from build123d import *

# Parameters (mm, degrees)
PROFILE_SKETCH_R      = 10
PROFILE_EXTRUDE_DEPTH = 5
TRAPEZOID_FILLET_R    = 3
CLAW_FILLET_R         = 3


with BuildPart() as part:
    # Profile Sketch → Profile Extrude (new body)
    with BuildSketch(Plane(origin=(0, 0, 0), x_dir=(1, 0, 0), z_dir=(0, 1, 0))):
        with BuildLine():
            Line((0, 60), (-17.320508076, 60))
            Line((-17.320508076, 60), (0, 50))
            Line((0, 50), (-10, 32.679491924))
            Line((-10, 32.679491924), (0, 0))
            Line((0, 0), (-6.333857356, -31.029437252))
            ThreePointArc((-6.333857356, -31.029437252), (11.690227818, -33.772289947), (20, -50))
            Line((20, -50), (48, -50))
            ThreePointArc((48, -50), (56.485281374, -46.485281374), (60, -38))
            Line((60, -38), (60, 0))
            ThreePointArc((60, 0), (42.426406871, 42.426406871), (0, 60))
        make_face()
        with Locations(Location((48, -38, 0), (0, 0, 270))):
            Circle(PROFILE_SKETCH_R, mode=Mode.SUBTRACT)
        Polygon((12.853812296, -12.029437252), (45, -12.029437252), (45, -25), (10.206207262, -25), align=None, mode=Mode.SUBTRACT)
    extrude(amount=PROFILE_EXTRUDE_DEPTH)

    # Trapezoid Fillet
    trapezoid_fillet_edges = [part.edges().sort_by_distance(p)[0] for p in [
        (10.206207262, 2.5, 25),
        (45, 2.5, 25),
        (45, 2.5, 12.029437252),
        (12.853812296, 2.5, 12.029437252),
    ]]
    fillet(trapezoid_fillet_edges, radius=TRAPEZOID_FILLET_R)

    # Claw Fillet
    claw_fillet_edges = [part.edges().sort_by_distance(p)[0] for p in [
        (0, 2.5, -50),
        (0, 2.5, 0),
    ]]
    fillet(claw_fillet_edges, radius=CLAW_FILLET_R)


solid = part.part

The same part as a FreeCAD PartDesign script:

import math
import FreeCAD as App
import Part
import Sketcher

V = App.Vector
Q = App.Units.Quantity


def edges_at(feature, points):
    """Names of the edges that pass closest to the given points."""
    edges = feature.Shape.Edges
    near = lambda p: min(range(len(edges)), key=lambda i: edges[i].distToShape(Part.Vertex(*p))[0])
    return sorted({f"Edge{near(p) + 1}" for p in points})

doc = App.newDocument("Part")
body = doc.addObject("PartDesign::Body", "Body")

sketch1 = body.newObject("Sketcher::SketchObject", "Sketch")
sketch1.AttachmentSupport = (doc.getObject("XZ_Plane"), [""])
sketch1.MapMode = "FlatFace"
sketch1.addGeometry([
    Part.LineSegment(V(0, -60, 0), V(-17, -60, 0)),
    Part.LineSegment(V(-17, -60, 0), V(0, -50, 0)),
    Part.LineSegment(V(0, -50, 0), V(-10, -33, 0)),
    Part.LineSegment(V(-10, -33, 0), V(0, 0, 0)),
    Part.LineSegment(V(0, 0, 0), V(-6, 31, 0)),
    Part.ArcOfCircle(Part.Circle(V(0, 50, 0), V(0, 0, 1), 20), math.radians(-108), math.radians(0)),
    Part.LineSegment(V(20, 50, 0), V(48, 50, 0)),
    Part.ArcOfCircle(Part.Circle(V(48, 38, 0), V(0, 0, 1), 12), math.radians(0), math.radians(90)),
    Part.LineSegment(V(60, 38, 0), V(60, 0, 0)),
    Part.ArcOfCircle(Part.Circle(V(0, 0, 0), V(0, 0, 1), 60), math.radians(-90), math.radians(0)),
    Part.Circle(V(48, 38, 0), V(0, 0, 1), 10),
    Part.LineSegment(V(10, 25, 0), V(13, 12, 0)),
    Part.LineSegment(V(13, 12, 0), V(45, 12, 0)),
    Part.LineSegment(V(45, 12, 0), V(45, 25, 0)),
    Part.LineSegment(V(45, 25, 0), V(10, 25, 0)),
], False)
sketch1.addConstraint([
    Sketcher.Constraint("Coincident", 0, 2, 1, 1),
    Sketcher.Constraint("Coincident", 1, 2, 2, 1),
    Sketcher.Constraint("Coincident", 2, 2, 3, 1),
    Sketcher.Constraint("Coincident", 3, 2, 4, 1),
    Sketcher.Constraint("Coincident", 4, 2, 5, 1),
    Sketcher.Constraint("Coincident", 5, 2, 6, 1),
    Sketcher.Constraint("Tangent", 6, 2, 7, 2),
    Sketcher.Constraint("Tangent", 7, 1, 8, 1),
    Sketcher.Constraint("Tangent", 8, 2, 9, 2),
    Sketcher.Constraint("Tangent", 9, 1, 0, 1),
    Sketcher.Constraint("Coincident", 11, 2, 12, 1),
    Sketcher.Constraint("Coincident", 12, 2, 13, 1),
    Sketcher.Constraint("Coincident", 13, 2, 14, 1),
    Sketcher.Constraint("Coincident", 14, 2, 11, 1),
    Sketcher.Constraint("Horizontal", 0),
    Sketcher.Constraint("Horizontal", 6),
    Sketcher.Constraint("Vertical", 8),
    Sketcher.Constraint("Horizontal", 12),
    Sketcher.Constraint("Vertical", 13),
    Sketcher.Constraint("Horizontal", 14),
    Sketcher.Constraint("Coincident", 9, 3, -1, 1),
    Sketcher.Constraint("Coincident", 3, 2, -1, 1),
    Sketcher.Constraint("Coincident", 10, 3, 7, 3),
    Sketcher.Constraint("PointOnObject", 5, 3, -2),
    Sketcher.Constraint("PointOnObject", 1, 2, -2),
    Sketcher.Constraint("Perpendicular", 1, 2),
    Sketcher.Constraint("Parallel", 4, 11),
    Sketcher.Constraint("Equal", 1, 2),
    Sketcher.Constraint("Diameter", 10, Q("20 mm")),
    Sketcher.Constraint("Radius", 5, Q("20 mm")),
    Sketcher.Constraint("Radius", 7, Q("12 mm")),
    Sketcher.Constraint("Radius", 9, Q("60 mm")),
    Sketcher.Constraint("DistanceY", 8, 2, 8, 1, Q("38 mm")),
    Sketcher.Constraint("Angle", 1, Q("30 deg")),
    Sketcher.Constraint("Distance", 1, Q("20 mm")),
    Sketcher.Constraint("DistanceY", -1, 1, 5, 3, Q("50 mm")),
    Sketcher.Constraint("DistanceX", -1, 1, 12, 2, Q("45 mm")),
    Sketcher.Constraint("DistanceY", -1, 1, 13, 2, Q("25 mm")),
    Sketcher.Constraint("DistanceY", 11, 2, 4, 2, Q("19 mm")),
    Sketcher.Constraint("DistanceX", 12, 1, 12, 2, Q("32.146188 mm")),
    Sketcher.Constraint("DistanceX", 14, 2, 14, 1, Q("34.793793 mm")),
])
pad1 = body.newObject("PartDesign::Pad", "Pad")
pad1.Profile = sketch1
pad1.Length = 5
pad1.Reversed = True
doc.recompute()

fillet = body.newObject("PartDesign::Fillet", "Fillet")
fillet.Base = (pad1, edges_at(pad1, [
    (10.206, 2.5, 25),
    (45, 2.5, 25),
    (45, 2.5, 12.029),
    (12.854, 2.5, 12.029),
]))
fillet.Radius = 3
doc.recompute()

fillet2 = body.newObject("PartDesign::Fillet", "Fillet001")
fillet2.Base = (fillet, edges_at(fillet, [(0, 2.5, -50), (0, 2.5, 0)]))
fillet2.Radius = 3

doc.recompute()
